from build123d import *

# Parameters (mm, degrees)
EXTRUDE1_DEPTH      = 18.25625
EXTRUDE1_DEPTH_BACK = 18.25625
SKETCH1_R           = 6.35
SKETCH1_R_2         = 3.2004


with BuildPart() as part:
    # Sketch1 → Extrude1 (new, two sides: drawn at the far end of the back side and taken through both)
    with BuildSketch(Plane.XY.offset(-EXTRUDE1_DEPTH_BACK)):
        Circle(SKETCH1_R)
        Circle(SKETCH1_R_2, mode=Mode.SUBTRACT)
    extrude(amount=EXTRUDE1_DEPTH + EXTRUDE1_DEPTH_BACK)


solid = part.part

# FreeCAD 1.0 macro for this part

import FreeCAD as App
import Part
import Sketcher
from FreeCAD import Vector
Q = App.Units.Quantity

doc = App.newDocument("Part")
body = doc.addObject("PartDesign::Body", "Body")

sketch1 = body.newObject("Sketcher::SketchObject", "Sketch")
sketch1.AttachmentSupport = (doc.getObject("XY_Plane"), [""])
sketch1.MapMode = "FlatFace"
sketch1.addGeometry(Part.Circle(Vector(0, 0, 0), Vector(0, 0, 1), 6.3), False)
sketch1.addGeometry(Part.Circle(Vector(0, 0, 0), Vector(0, 0, 1), 3.2), False)
sketch1.addConstraint(Sketcher.Constraint("Coincident", 0, 3, -1, 1))
sketch1.addConstraint(Sketcher.Constraint("Coincident", 1, 3, -1, 1))
sketch1.addConstraint(Sketcher.Constraint("Diameter", 0, Q("0.5 in")))
sketch1.addConstraint(Sketcher.Constraint("Diameter", 1, Q("0.252 in")))
pad1 = body.newObject("PartDesign::Pad", "Pad")
pad1.Profile = sketch1
pad1.Type = "TwoLengths"
pad1.Length = Q("0.71875 in")
pad1.Length2 = Q("0.71875 in")

doc.recompute()
